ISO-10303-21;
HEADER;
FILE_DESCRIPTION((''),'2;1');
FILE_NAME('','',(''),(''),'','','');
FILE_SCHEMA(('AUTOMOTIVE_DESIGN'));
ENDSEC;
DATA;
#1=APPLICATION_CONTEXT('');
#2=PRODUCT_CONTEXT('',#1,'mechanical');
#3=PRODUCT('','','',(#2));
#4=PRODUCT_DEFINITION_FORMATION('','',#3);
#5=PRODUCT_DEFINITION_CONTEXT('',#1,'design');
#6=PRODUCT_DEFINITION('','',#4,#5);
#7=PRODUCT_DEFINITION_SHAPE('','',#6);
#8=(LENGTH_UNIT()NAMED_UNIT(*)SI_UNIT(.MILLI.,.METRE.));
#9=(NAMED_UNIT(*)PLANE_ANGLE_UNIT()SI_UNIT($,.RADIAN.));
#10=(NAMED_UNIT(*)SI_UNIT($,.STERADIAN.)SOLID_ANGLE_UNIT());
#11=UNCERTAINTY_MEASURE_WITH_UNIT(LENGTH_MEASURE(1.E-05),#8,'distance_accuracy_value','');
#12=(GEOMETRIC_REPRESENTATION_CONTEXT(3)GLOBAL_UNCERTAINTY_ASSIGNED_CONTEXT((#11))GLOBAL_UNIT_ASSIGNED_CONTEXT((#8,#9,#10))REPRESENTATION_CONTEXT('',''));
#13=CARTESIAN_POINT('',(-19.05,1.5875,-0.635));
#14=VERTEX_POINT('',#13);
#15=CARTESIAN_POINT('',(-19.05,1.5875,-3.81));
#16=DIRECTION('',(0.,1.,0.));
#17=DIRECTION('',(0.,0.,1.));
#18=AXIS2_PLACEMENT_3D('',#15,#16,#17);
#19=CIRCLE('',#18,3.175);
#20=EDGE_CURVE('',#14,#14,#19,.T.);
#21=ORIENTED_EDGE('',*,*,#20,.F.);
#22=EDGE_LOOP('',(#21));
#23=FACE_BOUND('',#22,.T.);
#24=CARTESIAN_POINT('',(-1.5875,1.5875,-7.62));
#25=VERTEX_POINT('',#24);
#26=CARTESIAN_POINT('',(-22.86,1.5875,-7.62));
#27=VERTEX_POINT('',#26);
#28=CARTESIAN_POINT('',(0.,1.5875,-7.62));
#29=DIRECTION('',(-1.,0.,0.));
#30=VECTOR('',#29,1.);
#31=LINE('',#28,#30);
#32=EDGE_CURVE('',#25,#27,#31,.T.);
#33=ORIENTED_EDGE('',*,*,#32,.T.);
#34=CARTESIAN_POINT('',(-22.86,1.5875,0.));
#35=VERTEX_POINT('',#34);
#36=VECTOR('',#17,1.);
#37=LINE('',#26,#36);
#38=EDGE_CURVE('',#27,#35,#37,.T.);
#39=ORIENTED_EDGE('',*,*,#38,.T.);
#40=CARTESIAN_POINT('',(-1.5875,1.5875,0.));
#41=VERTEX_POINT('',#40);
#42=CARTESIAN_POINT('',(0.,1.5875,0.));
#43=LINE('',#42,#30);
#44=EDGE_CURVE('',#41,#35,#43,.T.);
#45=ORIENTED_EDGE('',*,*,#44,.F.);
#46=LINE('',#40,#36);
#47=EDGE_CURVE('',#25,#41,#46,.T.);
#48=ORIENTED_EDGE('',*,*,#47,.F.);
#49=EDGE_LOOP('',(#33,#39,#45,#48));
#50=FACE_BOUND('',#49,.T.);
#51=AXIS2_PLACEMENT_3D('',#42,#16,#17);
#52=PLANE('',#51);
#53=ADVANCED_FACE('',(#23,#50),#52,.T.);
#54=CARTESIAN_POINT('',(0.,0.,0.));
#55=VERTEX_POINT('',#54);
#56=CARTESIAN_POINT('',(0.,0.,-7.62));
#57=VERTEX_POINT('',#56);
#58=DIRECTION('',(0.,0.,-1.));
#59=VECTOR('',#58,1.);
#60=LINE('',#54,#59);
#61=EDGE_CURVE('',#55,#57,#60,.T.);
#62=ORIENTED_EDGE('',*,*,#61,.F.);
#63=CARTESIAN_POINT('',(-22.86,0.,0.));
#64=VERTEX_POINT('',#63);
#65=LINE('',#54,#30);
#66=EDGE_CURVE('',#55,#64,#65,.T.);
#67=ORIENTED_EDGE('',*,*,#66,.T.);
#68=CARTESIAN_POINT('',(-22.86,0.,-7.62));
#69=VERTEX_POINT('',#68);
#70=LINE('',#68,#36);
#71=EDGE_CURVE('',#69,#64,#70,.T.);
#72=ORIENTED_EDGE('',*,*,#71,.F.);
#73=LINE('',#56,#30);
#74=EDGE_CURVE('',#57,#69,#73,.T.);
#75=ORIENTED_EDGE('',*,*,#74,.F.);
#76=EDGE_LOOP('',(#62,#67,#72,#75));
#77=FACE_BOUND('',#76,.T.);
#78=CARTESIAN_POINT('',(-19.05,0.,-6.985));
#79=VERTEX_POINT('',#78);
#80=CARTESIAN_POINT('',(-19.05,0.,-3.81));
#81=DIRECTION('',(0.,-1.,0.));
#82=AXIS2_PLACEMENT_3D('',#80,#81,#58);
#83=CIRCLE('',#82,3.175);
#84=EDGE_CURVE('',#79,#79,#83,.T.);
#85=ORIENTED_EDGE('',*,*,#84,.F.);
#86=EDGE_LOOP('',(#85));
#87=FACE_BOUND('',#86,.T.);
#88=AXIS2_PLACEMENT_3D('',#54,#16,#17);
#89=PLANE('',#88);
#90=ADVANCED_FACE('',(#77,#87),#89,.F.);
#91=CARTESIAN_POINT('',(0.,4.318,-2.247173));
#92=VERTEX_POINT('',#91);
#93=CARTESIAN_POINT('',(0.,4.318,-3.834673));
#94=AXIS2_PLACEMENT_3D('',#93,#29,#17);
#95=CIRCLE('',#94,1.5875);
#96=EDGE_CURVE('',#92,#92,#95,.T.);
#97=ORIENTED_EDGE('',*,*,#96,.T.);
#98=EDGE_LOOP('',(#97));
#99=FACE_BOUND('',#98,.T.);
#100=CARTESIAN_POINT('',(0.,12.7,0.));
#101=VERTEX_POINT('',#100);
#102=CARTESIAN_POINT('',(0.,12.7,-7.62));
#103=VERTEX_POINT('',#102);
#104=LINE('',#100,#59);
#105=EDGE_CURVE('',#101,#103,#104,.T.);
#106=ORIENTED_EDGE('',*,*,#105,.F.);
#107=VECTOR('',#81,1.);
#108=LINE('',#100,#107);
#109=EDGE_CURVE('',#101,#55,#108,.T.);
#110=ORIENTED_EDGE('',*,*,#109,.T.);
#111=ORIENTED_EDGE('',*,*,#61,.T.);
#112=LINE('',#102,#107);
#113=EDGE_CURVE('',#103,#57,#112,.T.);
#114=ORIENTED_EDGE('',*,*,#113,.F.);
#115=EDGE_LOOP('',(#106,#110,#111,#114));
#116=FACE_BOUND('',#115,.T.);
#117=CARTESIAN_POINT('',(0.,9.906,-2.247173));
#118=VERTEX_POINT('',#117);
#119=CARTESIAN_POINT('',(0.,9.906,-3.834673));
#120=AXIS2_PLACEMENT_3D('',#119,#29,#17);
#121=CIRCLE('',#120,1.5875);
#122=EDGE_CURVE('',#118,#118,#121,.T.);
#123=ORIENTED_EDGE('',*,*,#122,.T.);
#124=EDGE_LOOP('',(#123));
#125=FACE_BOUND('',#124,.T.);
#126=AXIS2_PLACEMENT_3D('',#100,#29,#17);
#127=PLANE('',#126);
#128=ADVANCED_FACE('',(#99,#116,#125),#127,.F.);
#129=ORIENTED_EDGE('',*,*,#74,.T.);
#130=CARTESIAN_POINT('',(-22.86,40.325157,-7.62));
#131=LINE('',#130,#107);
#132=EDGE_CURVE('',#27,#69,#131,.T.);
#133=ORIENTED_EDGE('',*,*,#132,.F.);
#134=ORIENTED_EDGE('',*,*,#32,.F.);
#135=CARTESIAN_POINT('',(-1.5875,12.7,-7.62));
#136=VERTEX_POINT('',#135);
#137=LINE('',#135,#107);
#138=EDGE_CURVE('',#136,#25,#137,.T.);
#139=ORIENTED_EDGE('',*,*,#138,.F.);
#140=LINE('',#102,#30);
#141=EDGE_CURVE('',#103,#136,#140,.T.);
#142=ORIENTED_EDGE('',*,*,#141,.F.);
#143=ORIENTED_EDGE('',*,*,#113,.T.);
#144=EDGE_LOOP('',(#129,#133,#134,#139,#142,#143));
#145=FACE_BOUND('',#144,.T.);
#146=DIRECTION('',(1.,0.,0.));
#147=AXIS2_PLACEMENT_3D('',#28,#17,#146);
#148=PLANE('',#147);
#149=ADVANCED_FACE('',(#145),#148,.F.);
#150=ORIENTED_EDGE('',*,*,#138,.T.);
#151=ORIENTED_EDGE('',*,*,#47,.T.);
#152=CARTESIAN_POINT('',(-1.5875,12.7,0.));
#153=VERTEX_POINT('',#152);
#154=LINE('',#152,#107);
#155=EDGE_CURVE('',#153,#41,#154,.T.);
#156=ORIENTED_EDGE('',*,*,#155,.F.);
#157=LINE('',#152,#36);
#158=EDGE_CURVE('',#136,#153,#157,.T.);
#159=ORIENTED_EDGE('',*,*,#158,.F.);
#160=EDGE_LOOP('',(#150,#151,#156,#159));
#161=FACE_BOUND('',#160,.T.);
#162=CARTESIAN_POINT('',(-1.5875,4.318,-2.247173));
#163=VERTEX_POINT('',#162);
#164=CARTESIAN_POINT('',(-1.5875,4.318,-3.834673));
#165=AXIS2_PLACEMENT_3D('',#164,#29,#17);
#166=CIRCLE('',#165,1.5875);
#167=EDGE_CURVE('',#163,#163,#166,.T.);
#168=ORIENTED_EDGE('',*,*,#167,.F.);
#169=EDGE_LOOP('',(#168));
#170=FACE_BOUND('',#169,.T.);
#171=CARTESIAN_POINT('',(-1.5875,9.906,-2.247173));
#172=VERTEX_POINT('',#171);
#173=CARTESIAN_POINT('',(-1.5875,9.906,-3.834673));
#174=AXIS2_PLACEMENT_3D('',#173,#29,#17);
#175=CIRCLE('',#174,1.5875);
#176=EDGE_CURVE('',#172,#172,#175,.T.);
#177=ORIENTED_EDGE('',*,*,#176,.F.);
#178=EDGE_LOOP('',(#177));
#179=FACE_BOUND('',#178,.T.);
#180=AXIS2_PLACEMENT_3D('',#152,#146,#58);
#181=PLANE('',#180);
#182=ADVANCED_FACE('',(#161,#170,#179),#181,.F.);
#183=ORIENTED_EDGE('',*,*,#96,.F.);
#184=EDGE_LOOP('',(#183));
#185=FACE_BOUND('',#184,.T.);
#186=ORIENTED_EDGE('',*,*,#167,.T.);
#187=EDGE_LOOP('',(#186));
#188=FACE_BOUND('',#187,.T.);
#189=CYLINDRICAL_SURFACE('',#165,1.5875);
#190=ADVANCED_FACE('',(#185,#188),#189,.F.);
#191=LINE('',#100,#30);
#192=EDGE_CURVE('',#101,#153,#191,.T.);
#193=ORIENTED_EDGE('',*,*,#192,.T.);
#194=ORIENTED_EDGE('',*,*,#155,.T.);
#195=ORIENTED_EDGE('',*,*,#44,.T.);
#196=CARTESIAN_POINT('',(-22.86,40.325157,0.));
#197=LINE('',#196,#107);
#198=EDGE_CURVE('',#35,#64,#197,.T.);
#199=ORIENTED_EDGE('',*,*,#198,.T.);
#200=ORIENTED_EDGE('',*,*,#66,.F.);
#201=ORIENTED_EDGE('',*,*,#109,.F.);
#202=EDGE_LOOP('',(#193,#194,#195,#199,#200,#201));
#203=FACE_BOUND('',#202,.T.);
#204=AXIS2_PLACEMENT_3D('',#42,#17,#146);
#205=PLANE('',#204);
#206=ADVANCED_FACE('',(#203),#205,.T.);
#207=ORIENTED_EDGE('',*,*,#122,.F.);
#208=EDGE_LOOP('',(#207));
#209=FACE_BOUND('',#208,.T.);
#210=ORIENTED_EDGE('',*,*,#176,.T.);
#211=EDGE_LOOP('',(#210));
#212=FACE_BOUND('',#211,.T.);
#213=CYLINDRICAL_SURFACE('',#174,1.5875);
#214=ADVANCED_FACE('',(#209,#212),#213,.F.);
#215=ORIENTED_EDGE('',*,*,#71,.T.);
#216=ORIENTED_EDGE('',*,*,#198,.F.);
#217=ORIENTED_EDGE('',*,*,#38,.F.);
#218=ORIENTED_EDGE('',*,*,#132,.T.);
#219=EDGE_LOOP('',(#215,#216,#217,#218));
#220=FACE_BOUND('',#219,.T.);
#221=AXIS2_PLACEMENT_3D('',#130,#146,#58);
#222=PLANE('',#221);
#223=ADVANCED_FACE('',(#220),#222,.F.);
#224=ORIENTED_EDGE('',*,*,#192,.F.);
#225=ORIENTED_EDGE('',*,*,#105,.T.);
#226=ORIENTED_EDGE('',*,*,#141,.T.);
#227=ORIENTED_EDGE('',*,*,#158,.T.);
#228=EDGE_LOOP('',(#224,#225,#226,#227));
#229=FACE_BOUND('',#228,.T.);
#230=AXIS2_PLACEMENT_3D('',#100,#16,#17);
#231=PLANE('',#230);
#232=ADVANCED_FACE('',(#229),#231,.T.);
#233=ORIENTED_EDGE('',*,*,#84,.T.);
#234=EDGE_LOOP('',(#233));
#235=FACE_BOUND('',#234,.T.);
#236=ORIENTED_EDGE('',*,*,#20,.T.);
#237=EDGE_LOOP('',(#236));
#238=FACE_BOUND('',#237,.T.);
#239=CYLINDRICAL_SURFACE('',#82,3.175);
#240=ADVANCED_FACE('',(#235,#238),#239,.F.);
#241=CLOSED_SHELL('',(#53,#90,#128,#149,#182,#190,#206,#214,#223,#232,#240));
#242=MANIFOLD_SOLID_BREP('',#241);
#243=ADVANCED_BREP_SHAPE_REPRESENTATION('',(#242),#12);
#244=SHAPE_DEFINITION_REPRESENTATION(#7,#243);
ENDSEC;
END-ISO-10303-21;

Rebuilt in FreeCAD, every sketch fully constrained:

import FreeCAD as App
import Part
import Sketcher

V = App.Vector
Q = App.Units.Quantity

doc = App.newDocument("Part")
body = doc.addObject("PartDesign::Body", "Body")

# Sketch on XZ plane
sketch1 = body.newObject("Sketcher::SketchObject", "Sketch")
sketch1.AttachmentSupport = (doc.getObject("XZ_Plane"), [""])
sketch1.MapMode = "FlatFace"
sketch1.addGeometry([
    Part.LineSegment(V(-25.4, -7.62, 0), V(-25.4, 0, 0)),
    Part.LineSegment(V(-25.4, 0, 0), V(-1.5875, 0, 0)),
    Part.LineSegment(V(-1.5875, 0, 0), V(-1.5875, -7.62, 0)),
    Part.LineSegment(V(-1.5875, -7.62, 0), V(-25.4, -7.62, 0)),
], False)
sketch1.addConstraint([
    Sketcher.Constraint("Coincident", 0, 2, 1, 1),
    Sketcher.Constraint("Coincident", 1, 2, 2, 1),
    Sketcher.Constraint("Coincident", 2, 2, 3, 1),
    Sketcher.Constraint("Coincident", 3, 2, 0, 1),
    Sketcher.Constraint("Vertical", 0),
    Sketcher.Constraint("Horizontal", 1),
    Sketcher.Constraint("Vertical", 2),
    Sketcher.Constraint("Horizontal", 3),
    Sketcher.Constraint("PointOnObject", 0, 2, -1),
    Sketcher.Constraint("DistanceY", 0, 1, 0, 2, Q("0.3 in")),
    Sketcher.Constraint("DistanceX", 0, 2, -1, 1, Q("1 in")),
    Sketcher.Constraint("DistanceX", 1, 1, 1, 2, Q("0.9375 in")),
])
pad1 = body.newObject("PartDesign::Pad", "Pad")
pad1.Profile = sketch1
pad1.Length = Q("0.0625 in")
pad1.Reversed = True

# Sketch on XZ plane
sketch2 = body.newObject("Sketcher::SketchObject", "Sketch001")
sketch2.AttachmentSupport = (doc.getObject("XZ_Plane"), [""])
sketch2.MapMode = "FlatFace"
sketch2.addGeometry([
    Part.LineSegment(V(-1.5875, -7.62, 0), V(-1.5875, 0, 0)),
    Part.LineSegment(V(-1.5875, 0, 0), V(0, 0, 0)),
    Part.LineSegment(V(0, 0, 0), V(0, -7.62, 0)),
    Part.LineSegment(V(0, -7.62, 0), V(-1.5875, -7.62, 0)),
], False)
sketch2.addConstraint([
    Sketcher.Constraint("Coincident", 0, 2, 1, 1),
    Sketcher.Constraint("Coincident", 1, 2, 2, 1),
    Sketcher.Constraint("Coincident", 2, 2, 3, 1),
    Sketcher.Constraint("Coincident", 3, 2, 0, 1),
    Sketcher.Constraint("Vertical", 0),
    Sketcher.Constraint("Horizontal", 1),
    Sketcher.Constraint("Vertical", 2),
    Sketcher.Constraint("Horizontal", 3),
    Sketcher.Constraint("Coincident", 1, 2, -1, 1),
    Sketcher.Constraint("DistanceY", 0, 1, 0, 2, Q("0.3 in")),
    Sketcher.Constraint("DistanceX", 1, 1, 1, 2, Q("0.0625 in")),
])
pad2 = body.newObject("PartDesign::Pad", "Pad001")
pad2.Profile = sketch2
pad2.Length = Q("0.5 in")
pad2.Reversed = True

# Sketch on XZ plane
sketch3 = body.newObject("Sketcher::SketchObject", "Sketch002")
sketch3.AttachmentSupport = (doc.getObject("XZ_Plane"), [""])
sketch3.MapMode = "FlatFace"
sketch3.addGeometry(Part.Circle(V(-19.05, -3.81, 0), V(0, 0, 1), 3.175), False)
sketch3.addConstraint([
    Sketcher.Constraint("Diameter", 0, Q("0.25 in")),
    Sketcher.Constraint("DistanceX", 0, 3, -1, 1, Q("0.75 in")),
    Sketcher.Constraint("DistanceY", 0, 3, -1, 1, Q("0.15 in")),
])
doc.recompute()
hole = body.newObject("PartDesign::Hole", "Hole")
hole.Profile = sketch3
hole.ThreadType = "None"
hole.Diameter = Q("0.25 in")
hole.DepthType = "ThroughAll"

# Sketch on XZ plane
sketch4 = body.newObject("Sketcher::SketchObject", "Sketch003")
sketch4.AttachmentSupport = (doc.getObject("XZ_Plane"), [""])
sketch4.MapMode = "FlatFace"
sketch4.AttachmentOffset = App.Placement(V(0, 0, -0.0625 * 25.4), App.Rotation())
sketch4.addGeometry([
    Part.LineSegment(V(-22.86, 58.193112, 0), V(-22.86, -65.813112, 0)),
    Part.LineSegment(V(-22.86, -65.813112, 0), V(-139.246223, -65.813112, 0)),
    Part.LineSegment(V(-139.246223, -65.813112, 0), V(-139.246223, 58.193112, 0)),
    Part.LineSegment(V(-139.246223, 58.193112, 0), V(-22.86, 58.193112, 0)),
], False)
sketch4.addConstraint([
    Sketcher.Constraint("Coincident", 0, 2, 1, 1),
    Sketcher.Constraint("Coincident", 1, 2, 2, 1),
    Sketcher.Constraint("Coincident", 2, 2, 3, 1),
    Sketcher.Constraint("Coincident", 3, 2, 0, 1),
    Sketcher.Constraint("Vertical", 0),
    Sketcher.Constraint("Horizontal", 1),
    Sketcher.Constraint("Vertical", 2),
    Sketcher.Constraint("Horizontal", 3),
    Sketcher.Constraint("DistanceX", 0, 2, -1, 1, Q("0.9 in")),
    Sketcher.Constraint("DistanceX", 1, 2, 1, 1, 116.386223),
    Sketcher.Constraint("DistanceY", 0, 2, 0, 1, 124.006223),
    Sketcher.Constraint("DistanceY", 0, 2, -1, 1, 65.813112),
])
pocket1 = body.newObject("PartDesign::Pocket", "Pocket")
pocket1.Profile = sketch4
pocket1.Type = "ThroughAll"
pocket1.Midplane = True

# Sketch on YZ plane
sketch5 = body.newObject("Sketcher::SketchObject", "Sketch004")
sketch5.AttachmentSupport = (doc.getObject("YZ_Plane"), [""])
sketch5.MapMode = "FlatFace"
sketch5.AttachmentOffset = App.Placement(V(0, 0, -0.0625 * 25.4), App.Rotation())
sketch5.addGeometry([
    Part.Circle(V(9.906, -3.834673, 0), V(0, 0, 1), 1.5875),
    Part.Circle(V(4.318, -3.834673, 0), V(0, 0, 1), 1.5875),
], False)
sketch5.addConstraint([
    Sketcher.Constraint("Equal", 0, 1),
    Sketcher.Constraint("Horizontal", 0, 3, 1, 3),
    Sketcher.Constraint("Diameter", 0, Q("0.125 in")),
    Sketcher.Constraint("DistanceX", -1, 1, 0, 3, Q("0.39 in")),
    Sketcher.Constraint("DistanceX", -1, 1, 1, 3, Q("0.17 in")),
    Sketcher.Constraint("DistanceY", 0, 3, -1, 1, 3.834673),
])
doc.recompute()
hole2 = body.newObject("PartDesign::Hole", "Hole001")
hole2.Profile = sketch5
hole2.ThreadType = "None"
hole2.Diameter = Q("0.125 in")
hole2.DepthType = "ThroughAll"
hole2.Reversed = True

doc.recompute()
